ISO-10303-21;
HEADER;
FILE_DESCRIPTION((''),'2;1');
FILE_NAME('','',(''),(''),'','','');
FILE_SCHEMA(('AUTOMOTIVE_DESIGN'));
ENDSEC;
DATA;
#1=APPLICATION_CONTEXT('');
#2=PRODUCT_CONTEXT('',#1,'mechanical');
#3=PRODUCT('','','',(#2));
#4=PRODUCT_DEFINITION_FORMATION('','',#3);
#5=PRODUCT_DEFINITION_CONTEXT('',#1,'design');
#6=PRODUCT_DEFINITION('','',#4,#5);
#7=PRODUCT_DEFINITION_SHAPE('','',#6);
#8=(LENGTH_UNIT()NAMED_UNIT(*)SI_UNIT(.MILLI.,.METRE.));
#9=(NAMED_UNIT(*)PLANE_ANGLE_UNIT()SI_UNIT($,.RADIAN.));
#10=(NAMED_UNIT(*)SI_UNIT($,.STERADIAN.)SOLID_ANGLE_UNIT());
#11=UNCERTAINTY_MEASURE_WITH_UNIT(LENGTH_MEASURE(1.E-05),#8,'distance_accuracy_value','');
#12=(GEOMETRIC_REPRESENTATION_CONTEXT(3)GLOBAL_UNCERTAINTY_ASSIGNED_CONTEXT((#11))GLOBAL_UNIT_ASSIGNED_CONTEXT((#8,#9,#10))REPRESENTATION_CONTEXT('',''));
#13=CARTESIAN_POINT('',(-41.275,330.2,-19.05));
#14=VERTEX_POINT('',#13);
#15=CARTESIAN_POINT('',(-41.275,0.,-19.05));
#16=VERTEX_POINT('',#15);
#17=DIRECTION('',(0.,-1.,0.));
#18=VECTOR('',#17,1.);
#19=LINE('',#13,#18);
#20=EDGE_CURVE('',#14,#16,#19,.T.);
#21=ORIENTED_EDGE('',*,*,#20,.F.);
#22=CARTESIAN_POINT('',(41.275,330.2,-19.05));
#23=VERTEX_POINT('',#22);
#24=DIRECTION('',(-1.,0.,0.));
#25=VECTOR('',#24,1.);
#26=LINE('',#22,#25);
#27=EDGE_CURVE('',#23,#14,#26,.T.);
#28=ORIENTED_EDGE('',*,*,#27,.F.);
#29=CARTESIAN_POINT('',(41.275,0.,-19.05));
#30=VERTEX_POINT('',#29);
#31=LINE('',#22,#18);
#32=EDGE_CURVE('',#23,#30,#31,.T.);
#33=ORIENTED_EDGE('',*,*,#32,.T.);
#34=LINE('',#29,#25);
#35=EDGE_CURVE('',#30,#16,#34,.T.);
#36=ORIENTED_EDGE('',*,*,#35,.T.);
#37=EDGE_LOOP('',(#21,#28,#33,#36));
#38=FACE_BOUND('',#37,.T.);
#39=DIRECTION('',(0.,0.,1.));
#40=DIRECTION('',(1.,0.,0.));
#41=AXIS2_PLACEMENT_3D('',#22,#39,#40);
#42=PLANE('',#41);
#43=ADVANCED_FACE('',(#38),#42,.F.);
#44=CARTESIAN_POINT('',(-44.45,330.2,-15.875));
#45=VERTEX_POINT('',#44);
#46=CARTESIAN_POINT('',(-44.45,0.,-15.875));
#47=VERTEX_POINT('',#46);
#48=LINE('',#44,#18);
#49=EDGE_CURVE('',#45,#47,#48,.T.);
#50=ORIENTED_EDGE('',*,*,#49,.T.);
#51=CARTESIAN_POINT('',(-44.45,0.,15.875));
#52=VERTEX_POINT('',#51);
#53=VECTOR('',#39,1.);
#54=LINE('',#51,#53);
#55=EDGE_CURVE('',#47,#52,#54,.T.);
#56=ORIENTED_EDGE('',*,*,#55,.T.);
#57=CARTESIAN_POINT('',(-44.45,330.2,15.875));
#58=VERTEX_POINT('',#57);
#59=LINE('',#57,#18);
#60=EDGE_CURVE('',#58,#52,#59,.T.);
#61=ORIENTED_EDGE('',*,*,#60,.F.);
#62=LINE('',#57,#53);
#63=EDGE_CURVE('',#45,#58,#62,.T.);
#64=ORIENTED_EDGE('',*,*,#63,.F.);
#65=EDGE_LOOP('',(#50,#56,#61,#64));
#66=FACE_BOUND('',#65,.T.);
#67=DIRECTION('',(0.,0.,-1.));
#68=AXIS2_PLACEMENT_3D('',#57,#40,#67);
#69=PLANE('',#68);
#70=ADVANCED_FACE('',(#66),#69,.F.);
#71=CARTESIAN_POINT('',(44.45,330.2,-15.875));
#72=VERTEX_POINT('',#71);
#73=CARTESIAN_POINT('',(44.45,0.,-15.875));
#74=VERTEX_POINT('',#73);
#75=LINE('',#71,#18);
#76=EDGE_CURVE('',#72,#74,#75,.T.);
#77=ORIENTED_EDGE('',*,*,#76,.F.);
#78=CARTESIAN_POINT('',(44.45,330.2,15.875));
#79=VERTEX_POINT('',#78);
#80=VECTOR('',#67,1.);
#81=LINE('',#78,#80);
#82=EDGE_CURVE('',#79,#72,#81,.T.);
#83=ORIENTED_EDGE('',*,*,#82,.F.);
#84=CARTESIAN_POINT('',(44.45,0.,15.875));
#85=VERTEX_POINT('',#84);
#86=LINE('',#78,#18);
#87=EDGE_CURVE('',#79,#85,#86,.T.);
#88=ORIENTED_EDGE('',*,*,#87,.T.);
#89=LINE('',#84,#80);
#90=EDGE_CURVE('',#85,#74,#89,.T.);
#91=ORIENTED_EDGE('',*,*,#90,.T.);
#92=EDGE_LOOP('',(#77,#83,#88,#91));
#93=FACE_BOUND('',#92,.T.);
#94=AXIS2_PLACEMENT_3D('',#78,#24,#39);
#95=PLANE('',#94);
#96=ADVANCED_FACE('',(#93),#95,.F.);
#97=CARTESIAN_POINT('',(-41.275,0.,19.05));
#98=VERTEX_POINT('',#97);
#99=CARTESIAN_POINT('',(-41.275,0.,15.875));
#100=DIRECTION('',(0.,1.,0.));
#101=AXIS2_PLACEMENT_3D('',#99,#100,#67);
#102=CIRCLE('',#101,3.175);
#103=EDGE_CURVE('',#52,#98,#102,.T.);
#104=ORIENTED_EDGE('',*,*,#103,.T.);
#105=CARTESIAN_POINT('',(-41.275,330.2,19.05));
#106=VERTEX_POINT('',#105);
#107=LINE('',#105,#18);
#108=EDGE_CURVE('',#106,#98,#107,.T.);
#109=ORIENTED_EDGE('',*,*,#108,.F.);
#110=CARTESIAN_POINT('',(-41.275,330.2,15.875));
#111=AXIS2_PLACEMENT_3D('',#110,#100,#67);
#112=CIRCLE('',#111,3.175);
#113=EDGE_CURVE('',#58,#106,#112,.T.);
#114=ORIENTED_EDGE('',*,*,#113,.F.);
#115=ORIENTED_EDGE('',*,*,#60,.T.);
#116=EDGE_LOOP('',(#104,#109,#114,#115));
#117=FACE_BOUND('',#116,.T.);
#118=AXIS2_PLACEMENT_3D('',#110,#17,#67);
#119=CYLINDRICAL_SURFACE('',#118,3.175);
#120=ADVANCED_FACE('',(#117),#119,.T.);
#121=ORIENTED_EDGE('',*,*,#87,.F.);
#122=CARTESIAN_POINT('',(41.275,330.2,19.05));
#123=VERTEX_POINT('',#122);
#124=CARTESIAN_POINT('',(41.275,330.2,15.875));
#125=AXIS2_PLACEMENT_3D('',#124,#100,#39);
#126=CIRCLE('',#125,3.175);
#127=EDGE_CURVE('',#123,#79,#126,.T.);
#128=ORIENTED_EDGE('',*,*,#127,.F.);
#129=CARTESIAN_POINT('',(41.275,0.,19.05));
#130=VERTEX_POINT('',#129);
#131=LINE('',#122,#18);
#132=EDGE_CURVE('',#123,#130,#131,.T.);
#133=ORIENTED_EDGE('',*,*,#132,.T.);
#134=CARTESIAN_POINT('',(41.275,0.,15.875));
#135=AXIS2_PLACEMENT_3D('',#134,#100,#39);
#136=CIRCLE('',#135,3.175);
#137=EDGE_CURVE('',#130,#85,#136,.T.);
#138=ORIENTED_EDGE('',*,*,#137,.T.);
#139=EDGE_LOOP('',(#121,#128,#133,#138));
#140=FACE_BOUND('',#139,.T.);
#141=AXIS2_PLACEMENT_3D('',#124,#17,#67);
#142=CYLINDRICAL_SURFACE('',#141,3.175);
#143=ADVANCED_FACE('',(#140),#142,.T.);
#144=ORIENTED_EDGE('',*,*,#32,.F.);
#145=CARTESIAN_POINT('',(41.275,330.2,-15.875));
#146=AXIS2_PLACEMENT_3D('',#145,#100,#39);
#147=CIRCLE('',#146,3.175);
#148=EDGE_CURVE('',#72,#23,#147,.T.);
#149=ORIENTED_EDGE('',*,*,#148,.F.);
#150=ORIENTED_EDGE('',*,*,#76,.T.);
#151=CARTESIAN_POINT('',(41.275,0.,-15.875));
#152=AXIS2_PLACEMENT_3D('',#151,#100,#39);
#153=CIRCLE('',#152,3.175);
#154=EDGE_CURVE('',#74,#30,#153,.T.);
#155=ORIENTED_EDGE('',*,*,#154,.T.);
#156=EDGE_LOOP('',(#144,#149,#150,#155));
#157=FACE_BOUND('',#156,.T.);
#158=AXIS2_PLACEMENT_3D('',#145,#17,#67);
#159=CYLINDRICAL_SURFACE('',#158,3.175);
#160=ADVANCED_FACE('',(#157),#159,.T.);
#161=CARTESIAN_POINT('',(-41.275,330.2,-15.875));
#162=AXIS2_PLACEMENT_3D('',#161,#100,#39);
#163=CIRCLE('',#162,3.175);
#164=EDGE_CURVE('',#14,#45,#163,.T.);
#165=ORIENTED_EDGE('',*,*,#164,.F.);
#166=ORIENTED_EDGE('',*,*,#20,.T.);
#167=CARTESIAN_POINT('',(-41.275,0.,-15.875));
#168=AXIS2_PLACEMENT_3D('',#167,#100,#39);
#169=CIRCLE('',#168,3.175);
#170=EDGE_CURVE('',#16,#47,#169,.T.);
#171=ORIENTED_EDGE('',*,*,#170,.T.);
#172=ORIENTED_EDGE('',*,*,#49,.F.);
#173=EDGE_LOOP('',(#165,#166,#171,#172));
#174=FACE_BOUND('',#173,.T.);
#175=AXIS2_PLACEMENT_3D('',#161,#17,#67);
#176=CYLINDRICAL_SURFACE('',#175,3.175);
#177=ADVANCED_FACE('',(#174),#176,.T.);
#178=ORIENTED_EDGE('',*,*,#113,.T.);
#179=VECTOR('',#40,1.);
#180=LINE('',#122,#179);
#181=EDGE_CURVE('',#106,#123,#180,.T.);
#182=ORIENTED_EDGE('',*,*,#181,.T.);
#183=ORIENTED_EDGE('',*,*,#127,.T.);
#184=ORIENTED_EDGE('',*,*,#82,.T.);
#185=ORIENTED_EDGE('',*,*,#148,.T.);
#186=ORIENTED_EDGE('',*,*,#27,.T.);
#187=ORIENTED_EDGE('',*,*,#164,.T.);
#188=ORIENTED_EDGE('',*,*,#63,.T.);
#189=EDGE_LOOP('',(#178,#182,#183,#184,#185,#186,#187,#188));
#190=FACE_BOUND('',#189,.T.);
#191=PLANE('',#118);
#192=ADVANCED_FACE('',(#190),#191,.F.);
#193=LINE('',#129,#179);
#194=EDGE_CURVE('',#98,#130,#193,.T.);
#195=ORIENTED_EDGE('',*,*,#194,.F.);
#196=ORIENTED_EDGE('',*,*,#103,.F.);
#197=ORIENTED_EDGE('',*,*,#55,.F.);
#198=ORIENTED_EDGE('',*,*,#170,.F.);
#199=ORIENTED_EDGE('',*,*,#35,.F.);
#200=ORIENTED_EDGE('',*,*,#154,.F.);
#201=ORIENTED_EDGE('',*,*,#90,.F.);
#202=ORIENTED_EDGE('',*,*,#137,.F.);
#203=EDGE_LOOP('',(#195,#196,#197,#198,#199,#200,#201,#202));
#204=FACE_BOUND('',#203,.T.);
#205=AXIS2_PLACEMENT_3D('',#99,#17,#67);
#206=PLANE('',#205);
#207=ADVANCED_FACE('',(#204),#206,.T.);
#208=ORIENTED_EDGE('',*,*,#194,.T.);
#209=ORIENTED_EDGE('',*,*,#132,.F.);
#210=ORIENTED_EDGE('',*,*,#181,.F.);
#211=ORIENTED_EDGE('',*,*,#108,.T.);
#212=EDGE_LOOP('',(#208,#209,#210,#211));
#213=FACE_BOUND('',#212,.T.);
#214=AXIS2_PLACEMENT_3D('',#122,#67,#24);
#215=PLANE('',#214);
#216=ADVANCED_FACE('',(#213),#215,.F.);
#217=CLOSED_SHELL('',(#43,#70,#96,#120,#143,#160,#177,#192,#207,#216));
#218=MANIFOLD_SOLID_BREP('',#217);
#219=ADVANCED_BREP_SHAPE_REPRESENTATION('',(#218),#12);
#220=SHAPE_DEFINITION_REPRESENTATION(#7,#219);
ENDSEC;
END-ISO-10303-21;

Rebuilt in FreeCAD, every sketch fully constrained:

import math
import FreeCAD as App
import Part
import Sketcher
from FreeCAD import Vector
Q = App.Units.Quantity

doc = App.newDocument("Part")
params = doc.addObject("Spreadsheet::Sheet", "Params")
for row, (alias, value) in enumerate([
    ("sketch1_radius", "0.125 in"),
    ("sketch1_width", "3.25 in"),
    ("sketch1_height", "1.25 in"),
    ("pad1_length", "13 in"),
], start=1):
    params.set(f"A{row}", alias)
    params.set(f"B{row}", "=" + value)
    params.setAlias(f"B{row}", alias)

body = doc.addObject("PartDesign::Body", "Body")

# Sketch on XZ plane
sketch1 = doc.addObject("Sketcher::SketchObject", "Sketch")
body.addObject(sketch1)
sketch1.AttachmentSupport = (doc.XZ_Plane, [""])
sketch1.MapMode = "FlatFace"
sketch1.addGeometry([
    Part.LineSegment(Vector(-41.275, 19.05, 0), Vector(41.275, 19.05, 0)),  # 0
    Part.ArcOfCircle(Part.Circle(Vector(41.275, 15.875, 0), Vector(0, 0, 1), 3.175), math.radians(0), math.radians(90)),  # 1
    Part.LineSegment(Vector(44.45, 15.875, 0), Vector(44.45, -15.875, 0)),  # 2
    Part.ArcOfCircle(Part.Circle(Vector(41.275, -15.875, 0), Vector(0, 0, 1), 3.175), math.radians(-90), math.radians(0)),  # 3
    Part.LineSegment(Vector(41.275, -19.05, 0), Vector(-41.275, -19.05, 0)),  # 4
    Part.ArcOfCircle(Part.Circle(Vector(-41.275, -15.875, 0), Vector(0, 0, 1), 3.175), math.radians(-180), math.radians(-90)),  # 5
    Part.LineSegment(Vector(-44.45, -15.875, 0), Vector(-44.45, 15.875, 0)),  # 6
    Part.ArcOfCircle(Part.Circle(Vector(-41.275, 15.875, 0), Vector(0, 0, 1), 3.175), math.radians(90), math.radians(180)),  # 7
], False)
sketch1.addConstraint([
    Sketcher.Constraint("Tangent", 0, 2, 1, 2),
    Sketcher.Constraint("Tangent", 1, 1, 2, 1),
    Sketcher.Constraint("Tangent", 2, 2, 3, 2),
    Sketcher.Constraint("Tangent", 3, 1, 4, 1),
    Sketcher.Constraint("Tangent", 4, 2, 5, 2),
    Sketcher.Constraint("Tangent", 5, 1, 6, 1),
    Sketcher.Constraint("Tangent", 6, 2, 7, 2),
    Sketcher.Constraint("Tangent", 7, 1, 0, 1),
    Sketcher.Constraint("Horizontal", 0),
    Sketcher.Constraint("Vertical", 2),
    Sketcher.Constraint("Horizontal", 4),
    Sketcher.Constraint("Vertical", 6),
    Sketcher.Constraint("Equal", 1, 3),
    Sketcher.Constraint("Equal", 3, 5),
    Sketcher.Constraint("Equal", 5, 7),
    Sketcher.Constraint("Symmetric", 1, 3, 5, 3, -1, 1),
    Sketcher.Constraint("Radius", 1, Q("0.125 in")),
    Sketcher.Constraint("DistanceX", 0, 1, 0, 2, Q("3.25 in")),
    Sketcher.Constraint("DistanceY", 2, 2, 2, 1, Q("1.25 in")),
])
sketch1.setExpression("Constraints[16]", "Params.sketch1_radius")
sketch1.setExpression("Constraints[17]", "Params.sketch1_width")
sketch1.setExpression("Constraints[18]", "Params.sketch1_height")
pad1 = doc.addObject("PartDesign::Pad", "Pad")
body.addObject(pad1)
pad1.Profile = sketch1
pad1.setExpression("Length", "Params.pad1_length")
pad1.Reversed = True

doc.recompute()
